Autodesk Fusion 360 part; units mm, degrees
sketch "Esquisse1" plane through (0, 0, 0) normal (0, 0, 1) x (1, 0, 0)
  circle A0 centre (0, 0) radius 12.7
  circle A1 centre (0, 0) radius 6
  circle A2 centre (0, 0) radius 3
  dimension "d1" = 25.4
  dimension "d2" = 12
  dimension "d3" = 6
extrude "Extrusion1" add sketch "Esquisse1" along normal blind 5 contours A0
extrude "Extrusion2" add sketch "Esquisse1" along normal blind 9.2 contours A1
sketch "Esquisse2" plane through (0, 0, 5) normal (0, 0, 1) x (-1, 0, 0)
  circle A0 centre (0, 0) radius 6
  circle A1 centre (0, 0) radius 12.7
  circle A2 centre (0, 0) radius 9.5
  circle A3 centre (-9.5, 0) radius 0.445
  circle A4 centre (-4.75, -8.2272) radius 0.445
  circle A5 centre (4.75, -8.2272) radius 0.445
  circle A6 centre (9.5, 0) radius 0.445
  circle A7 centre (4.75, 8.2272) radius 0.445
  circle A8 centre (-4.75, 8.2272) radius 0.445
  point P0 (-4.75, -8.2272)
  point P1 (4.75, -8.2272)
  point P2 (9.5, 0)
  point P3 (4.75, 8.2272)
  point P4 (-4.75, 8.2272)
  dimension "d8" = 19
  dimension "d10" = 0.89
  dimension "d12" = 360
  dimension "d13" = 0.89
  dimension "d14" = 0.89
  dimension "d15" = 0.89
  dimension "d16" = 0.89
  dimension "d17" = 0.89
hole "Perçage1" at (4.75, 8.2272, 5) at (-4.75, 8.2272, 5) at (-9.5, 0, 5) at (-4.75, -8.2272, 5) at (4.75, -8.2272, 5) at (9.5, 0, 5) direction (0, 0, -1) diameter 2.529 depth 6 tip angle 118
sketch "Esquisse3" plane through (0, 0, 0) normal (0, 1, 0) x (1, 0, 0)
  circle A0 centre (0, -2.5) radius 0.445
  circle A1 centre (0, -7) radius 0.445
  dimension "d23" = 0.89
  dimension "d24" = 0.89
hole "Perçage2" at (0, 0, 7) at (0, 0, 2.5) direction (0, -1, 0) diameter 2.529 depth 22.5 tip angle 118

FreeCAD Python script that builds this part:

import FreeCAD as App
import Part
import Sketcher
Q = App.Units.Quantity

doc = App.newDocument("Part")
body = doc.addObject("PartDesign::Body", "Body")

sketch1 = body.newObject("Sketcher::SketchObject", "Sketch")
sketch1.AttachmentSupport = (doc.getObject("XY_Plane"), [""])
sketch1.MapMode = "FlatFace"
sketch1.addGeometry(Part.Circle(App.Vector(0, 0, 0), App.Vector(0, 0, 1), 13), False)
sketch1.addGeometry(Part.Circle(App.Vector(0, 0, 0), App.Vector(0, 0, 1), 6), False)
sketch1.addConstraint(Sketcher.Constraint("Coincident", 0, 3, -1, 1))
sketch1.addConstraint(Sketcher.Constraint("Coincident", 1, 3, -1, 1))
sketch1.addConstraint(Sketcher.Constraint("Diameter", 1, Q("12 mm")))
sketch1.addConstraint(Sketcher.Constraint("Diameter", 0, Q("25.4 mm")))
pad1 = body.newObject("PartDesign::Pad", "Pad")
pad1.Profile = sketch1
pad1.Length = 5

sketch2 = body.newObject("Sketcher::SketchObject", "Sketch001")
sketch2.AttachmentSupport = (doc.getObject("XY_Plane"), [""])
sketch2.MapMode = "FlatFace"
sketch2.addGeometry(Part.Circle(App.Vector(0, 0, 0), App.Vector(0, 0, 1), 6), False)
sketch2.addGeometry(Part.Circle(App.Vector(0, 0, 0), App.Vector(0, 0, 1), 3), False)
sketch2.addConstraint(Sketcher.Constraint("Coincident", 0, 3, -1, 1))
sketch2.addConstraint(Sketcher.Constraint("Coincident", 1, 3, -1, 1))
sketch2.addConstraint(Sketcher.Constraint("Diameter", 0, Q("12 mm")))
sketch2.addConstraint(Sketcher.Constraint("Diameter", 1, Q("6 mm")))
pad2 = body.newObject("PartDesign::Pad", "Pad001")
pad2.Profile = sketch2
pad2.Length = 9.2

sketch3 = body.newObject("Sketcher::SketchObject", "Sketch002")
sketch3.AttachmentSupport = (doc.getObject("XY_Plane"), [""])
sketch3.MapMode = "FlatFace"
sketch3.AttachmentOffset = App.Placement(App.Vector(0, 0, 5), App.Rotation())
sketch3.addGeometry(Part.Circle(App.Vector(4.8, 8.2, 0), App.Vector(0, 0, 1), 1.3), False)
sketch3.addGeometry(Part.Circle(App.Vector(-4.8, 8.2, 0), App.Vector(0, 0, 1), 1.3), False)
sketch3.addGeometry(Part.Circle(App.Vector(-9.5, 0, 0), App.Vector(0, 0, 1), 1.3), False)
sketch3.addGeometry(Part.Circle(App.Vector(-4.8, -8.2, 0), App.Vector(0, 0, 1), 1.3), False)
sketch3.addGeometry(Part.Circle(App.Vector(4.8, -8.2, 0), App.Vector(0, 0, 1), 1.3), False)
sketch3.addGeometry(Part.Circle(App.Vector(9.5, 0, 0), App.Vector(0, 0, 1), 1.3), False)
sketch3.addConstraint(Sketcher.Constraint("Equal", 0, 1))
sketch3.addConstraint(Sketcher.Constraint("Equal", 1, 2))
sketch3.addConstraint(Sketcher.Constraint("Equal", 2, 3))
sketch3.addConstraint(Sketcher.Constraint("Equal", 3, 4))
sketch3.addConstraint(Sketcher.Constraint("Equal", 4, 5))
sketch3.addConstraint(Sketcher.Constraint("Symmetric", 0, 3, 3, 3, -1, 1))
sketch3.addConstraint(Sketcher.Constraint("Symmetric", 1, 3, 4, 3, -1, 1))
sketch3.addConstraint(Sketcher.Constraint("Symmetric", 2, 3, 5, 3, -1, 1))
sketch3.addConstraint(Sketcher.Constraint("Symmetric", 0, 3, 1, 3, -2))
sketch3.addConstraint(Sketcher.Constraint("PointOnObject", 2, 3, -1))
sketch3.addConstraint(Sketcher.Constraint("Diameter", 0, Q("2.529 mm")))
sketch3.addConstraint(Sketcher.Constraint("DistanceX", 2, 3, 5, 3, Q("19 mm")))
sketch3.addConstraint(Sketcher.Constraint("DistanceX", 1, 3, 0, 3, Q("9.5 mm")))
sketch3.addConstraint(Sketcher.Constraint("DistanceY", -1, 1, 0, 3, Q("8.2272 mm")))
doc.recompute()
hole = body.newObject("PartDesign::Hole", "Hole")
hole.Profile = sketch3
hole.ThreadType = "None"
hole.Diameter = 2.529
hole.DepthType = "Dimension"
hole.Depth = 6
hole.DrillPoint = "Angled"
hole.DrillPointAngle = 118

sketch4 = body.newObject("Sketcher::SketchObject", "Sketch003")
sketch4.AttachmentSupport = (doc.getObject("XZ_Plane"), [""])
sketch4.MapMode = "FlatFace"
sketch4.addGeometry(Part.Circle(App.Vector(0, 7, 0), App.Vector(0, 0, 1), 1.3), False)
sketch4.addGeometry(Part.Circle(App.Vector(0, 2.5, 0), App.Vector(0, 0, 1), 1.3), False)
sketch4.addConstraint(Sketcher.Constraint("Equal", 0, 1))
sketch4.addConstraint(Sketcher.Constraint("PointOnObject", 0, 3, -2))
sketch4.addConstraint(Sketcher.Constraint("PointOnObject", 1, 3, -2))
sketch4.addConstraint(Sketcher.Constraint("Diameter", 0, Q("2.529 mm")))
sketch4.addConstraint(Sketcher.Constraint("DistanceY", -1, 1, 0, 3, Q("7 mm")))
sketch4.addConstraint(Sketcher.Constraint("DistanceY", -1, 1, 1, 3, Q("2.5 mm")))
doc.recompute()
hole2 = body.newObject("PartDesign::Hole", "Hole001")
hole2.Profile = sketch4
hole2.ThreadType = "None"
hole2.Diameter = 2.529
hole2.DepthType = "Dimension"
hole2.Depth = 22.5
hole2.DrillPoint = "Angled"
hole2.DrillPointAngle = 118
hole2.Reversed = True

doc.recompute()
